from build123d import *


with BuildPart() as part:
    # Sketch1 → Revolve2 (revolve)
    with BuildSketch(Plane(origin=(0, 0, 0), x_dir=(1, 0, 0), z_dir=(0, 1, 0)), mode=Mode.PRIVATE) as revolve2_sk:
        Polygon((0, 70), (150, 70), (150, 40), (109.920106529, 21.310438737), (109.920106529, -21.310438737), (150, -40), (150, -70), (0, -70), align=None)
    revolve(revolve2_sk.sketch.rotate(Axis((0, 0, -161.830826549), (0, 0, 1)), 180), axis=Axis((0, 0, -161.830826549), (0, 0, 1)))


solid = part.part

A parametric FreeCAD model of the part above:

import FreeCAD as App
import Part
import Sketcher
from FreeCAD import Vector
Q = App.Units.Quantity

doc = App.newDocument("Part")
body = doc.addObject("PartDesign::Body", "Body")

sketch1 = body.newObject("Sketcher::SketchObject", "Sketch")
sketch1.AttachmentSupport = (doc.getObject("XZ_Plane"), [""])
sketch1.MapMode = "FlatFace"
sketch1.addGeometry([
    Part.LineSegment(Vector(150, -70, 0), Vector(0, -70, 0)),
    Part.LineSegment(Vector(0, -70, 0), Vector(0, 70, 0)),
    Part.LineSegment(Vector(0, 70, 0), Vector(150, 70, 0)),
    Part.LineSegment(Vector(150, 70, 0), Vector(150, 40, 0)),
    Part.LineSegment(Vector(150, 40, 0), Vector(110, 21, 0)),
    Part.LineSegment(Vector(110, 21, 0), Vector(110, -21, 0)),
    Part.LineSegment(Vector(110, -21, 0), Vector(150, -40, 0)),
    Part.LineSegment(Vector(150, -40, 0), Vector(150, -70, 0)),
], False)
sketch1.addConstraint([
    Sketcher.Constraint("Coincident", 0, 2, 1, 1),
    Sketcher.Constraint("Coincident", 1, 2, 2, 1),
    Sketcher.Constraint("Coincident", 2, 2, 3, 1),
    Sketcher.Constraint("Coincident", 3, 2, 4, 1),
    Sketcher.Constraint("Coincident", 4, 2, 5, 1),
    Sketcher.Constraint("Coincident", 5, 2, 6, 1),
    Sketcher.Constraint("Coincident", 6, 2, 7, 1),
    Sketcher.Constraint("Coincident", 7, 2, 0, 1),
    Sketcher.Constraint("Horizontal", 0),
    Sketcher.Constraint("Vertical", 1),
    Sketcher.Constraint("Horizontal", 2),
    Sketcher.Constraint("Vertical", 3),
    Sketcher.Constraint("Vertical", 5),
    Sketcher.Constraint("Vertical", 7),
    Sketcher.Constraint("Symmetric", 0, 2, 1, 2, -1, 1),
    Sketcher.Constraint("Symmetric", 3, 2, 6, 2, -1),
    Sketcher.Constraint("Equal", 4, 6),
    Sketcher.Constraint("DistanceX", 0, 2, 0, 1, 150.0),
    Sketcher.Constraint("DistanceY", 1, 1, 1, 2, 140.0),
    Sketcher.Constraint("DistanceY", 3, 2, 3, 1, 30.0),
    Sketcher.Constraint("Angle", 4, Q("-155 deg")),
    Sketcher.Constraint("Distance", 4, 44.223269),
])
revolution = body.newObject("PartDesign::Revolution", "Revolution")
revolution.Profile = sketch1
revolution.ReferenceAxis = (sketch1, ["V_Axis"])
revolution.Angle = 360

doc.recompute()
